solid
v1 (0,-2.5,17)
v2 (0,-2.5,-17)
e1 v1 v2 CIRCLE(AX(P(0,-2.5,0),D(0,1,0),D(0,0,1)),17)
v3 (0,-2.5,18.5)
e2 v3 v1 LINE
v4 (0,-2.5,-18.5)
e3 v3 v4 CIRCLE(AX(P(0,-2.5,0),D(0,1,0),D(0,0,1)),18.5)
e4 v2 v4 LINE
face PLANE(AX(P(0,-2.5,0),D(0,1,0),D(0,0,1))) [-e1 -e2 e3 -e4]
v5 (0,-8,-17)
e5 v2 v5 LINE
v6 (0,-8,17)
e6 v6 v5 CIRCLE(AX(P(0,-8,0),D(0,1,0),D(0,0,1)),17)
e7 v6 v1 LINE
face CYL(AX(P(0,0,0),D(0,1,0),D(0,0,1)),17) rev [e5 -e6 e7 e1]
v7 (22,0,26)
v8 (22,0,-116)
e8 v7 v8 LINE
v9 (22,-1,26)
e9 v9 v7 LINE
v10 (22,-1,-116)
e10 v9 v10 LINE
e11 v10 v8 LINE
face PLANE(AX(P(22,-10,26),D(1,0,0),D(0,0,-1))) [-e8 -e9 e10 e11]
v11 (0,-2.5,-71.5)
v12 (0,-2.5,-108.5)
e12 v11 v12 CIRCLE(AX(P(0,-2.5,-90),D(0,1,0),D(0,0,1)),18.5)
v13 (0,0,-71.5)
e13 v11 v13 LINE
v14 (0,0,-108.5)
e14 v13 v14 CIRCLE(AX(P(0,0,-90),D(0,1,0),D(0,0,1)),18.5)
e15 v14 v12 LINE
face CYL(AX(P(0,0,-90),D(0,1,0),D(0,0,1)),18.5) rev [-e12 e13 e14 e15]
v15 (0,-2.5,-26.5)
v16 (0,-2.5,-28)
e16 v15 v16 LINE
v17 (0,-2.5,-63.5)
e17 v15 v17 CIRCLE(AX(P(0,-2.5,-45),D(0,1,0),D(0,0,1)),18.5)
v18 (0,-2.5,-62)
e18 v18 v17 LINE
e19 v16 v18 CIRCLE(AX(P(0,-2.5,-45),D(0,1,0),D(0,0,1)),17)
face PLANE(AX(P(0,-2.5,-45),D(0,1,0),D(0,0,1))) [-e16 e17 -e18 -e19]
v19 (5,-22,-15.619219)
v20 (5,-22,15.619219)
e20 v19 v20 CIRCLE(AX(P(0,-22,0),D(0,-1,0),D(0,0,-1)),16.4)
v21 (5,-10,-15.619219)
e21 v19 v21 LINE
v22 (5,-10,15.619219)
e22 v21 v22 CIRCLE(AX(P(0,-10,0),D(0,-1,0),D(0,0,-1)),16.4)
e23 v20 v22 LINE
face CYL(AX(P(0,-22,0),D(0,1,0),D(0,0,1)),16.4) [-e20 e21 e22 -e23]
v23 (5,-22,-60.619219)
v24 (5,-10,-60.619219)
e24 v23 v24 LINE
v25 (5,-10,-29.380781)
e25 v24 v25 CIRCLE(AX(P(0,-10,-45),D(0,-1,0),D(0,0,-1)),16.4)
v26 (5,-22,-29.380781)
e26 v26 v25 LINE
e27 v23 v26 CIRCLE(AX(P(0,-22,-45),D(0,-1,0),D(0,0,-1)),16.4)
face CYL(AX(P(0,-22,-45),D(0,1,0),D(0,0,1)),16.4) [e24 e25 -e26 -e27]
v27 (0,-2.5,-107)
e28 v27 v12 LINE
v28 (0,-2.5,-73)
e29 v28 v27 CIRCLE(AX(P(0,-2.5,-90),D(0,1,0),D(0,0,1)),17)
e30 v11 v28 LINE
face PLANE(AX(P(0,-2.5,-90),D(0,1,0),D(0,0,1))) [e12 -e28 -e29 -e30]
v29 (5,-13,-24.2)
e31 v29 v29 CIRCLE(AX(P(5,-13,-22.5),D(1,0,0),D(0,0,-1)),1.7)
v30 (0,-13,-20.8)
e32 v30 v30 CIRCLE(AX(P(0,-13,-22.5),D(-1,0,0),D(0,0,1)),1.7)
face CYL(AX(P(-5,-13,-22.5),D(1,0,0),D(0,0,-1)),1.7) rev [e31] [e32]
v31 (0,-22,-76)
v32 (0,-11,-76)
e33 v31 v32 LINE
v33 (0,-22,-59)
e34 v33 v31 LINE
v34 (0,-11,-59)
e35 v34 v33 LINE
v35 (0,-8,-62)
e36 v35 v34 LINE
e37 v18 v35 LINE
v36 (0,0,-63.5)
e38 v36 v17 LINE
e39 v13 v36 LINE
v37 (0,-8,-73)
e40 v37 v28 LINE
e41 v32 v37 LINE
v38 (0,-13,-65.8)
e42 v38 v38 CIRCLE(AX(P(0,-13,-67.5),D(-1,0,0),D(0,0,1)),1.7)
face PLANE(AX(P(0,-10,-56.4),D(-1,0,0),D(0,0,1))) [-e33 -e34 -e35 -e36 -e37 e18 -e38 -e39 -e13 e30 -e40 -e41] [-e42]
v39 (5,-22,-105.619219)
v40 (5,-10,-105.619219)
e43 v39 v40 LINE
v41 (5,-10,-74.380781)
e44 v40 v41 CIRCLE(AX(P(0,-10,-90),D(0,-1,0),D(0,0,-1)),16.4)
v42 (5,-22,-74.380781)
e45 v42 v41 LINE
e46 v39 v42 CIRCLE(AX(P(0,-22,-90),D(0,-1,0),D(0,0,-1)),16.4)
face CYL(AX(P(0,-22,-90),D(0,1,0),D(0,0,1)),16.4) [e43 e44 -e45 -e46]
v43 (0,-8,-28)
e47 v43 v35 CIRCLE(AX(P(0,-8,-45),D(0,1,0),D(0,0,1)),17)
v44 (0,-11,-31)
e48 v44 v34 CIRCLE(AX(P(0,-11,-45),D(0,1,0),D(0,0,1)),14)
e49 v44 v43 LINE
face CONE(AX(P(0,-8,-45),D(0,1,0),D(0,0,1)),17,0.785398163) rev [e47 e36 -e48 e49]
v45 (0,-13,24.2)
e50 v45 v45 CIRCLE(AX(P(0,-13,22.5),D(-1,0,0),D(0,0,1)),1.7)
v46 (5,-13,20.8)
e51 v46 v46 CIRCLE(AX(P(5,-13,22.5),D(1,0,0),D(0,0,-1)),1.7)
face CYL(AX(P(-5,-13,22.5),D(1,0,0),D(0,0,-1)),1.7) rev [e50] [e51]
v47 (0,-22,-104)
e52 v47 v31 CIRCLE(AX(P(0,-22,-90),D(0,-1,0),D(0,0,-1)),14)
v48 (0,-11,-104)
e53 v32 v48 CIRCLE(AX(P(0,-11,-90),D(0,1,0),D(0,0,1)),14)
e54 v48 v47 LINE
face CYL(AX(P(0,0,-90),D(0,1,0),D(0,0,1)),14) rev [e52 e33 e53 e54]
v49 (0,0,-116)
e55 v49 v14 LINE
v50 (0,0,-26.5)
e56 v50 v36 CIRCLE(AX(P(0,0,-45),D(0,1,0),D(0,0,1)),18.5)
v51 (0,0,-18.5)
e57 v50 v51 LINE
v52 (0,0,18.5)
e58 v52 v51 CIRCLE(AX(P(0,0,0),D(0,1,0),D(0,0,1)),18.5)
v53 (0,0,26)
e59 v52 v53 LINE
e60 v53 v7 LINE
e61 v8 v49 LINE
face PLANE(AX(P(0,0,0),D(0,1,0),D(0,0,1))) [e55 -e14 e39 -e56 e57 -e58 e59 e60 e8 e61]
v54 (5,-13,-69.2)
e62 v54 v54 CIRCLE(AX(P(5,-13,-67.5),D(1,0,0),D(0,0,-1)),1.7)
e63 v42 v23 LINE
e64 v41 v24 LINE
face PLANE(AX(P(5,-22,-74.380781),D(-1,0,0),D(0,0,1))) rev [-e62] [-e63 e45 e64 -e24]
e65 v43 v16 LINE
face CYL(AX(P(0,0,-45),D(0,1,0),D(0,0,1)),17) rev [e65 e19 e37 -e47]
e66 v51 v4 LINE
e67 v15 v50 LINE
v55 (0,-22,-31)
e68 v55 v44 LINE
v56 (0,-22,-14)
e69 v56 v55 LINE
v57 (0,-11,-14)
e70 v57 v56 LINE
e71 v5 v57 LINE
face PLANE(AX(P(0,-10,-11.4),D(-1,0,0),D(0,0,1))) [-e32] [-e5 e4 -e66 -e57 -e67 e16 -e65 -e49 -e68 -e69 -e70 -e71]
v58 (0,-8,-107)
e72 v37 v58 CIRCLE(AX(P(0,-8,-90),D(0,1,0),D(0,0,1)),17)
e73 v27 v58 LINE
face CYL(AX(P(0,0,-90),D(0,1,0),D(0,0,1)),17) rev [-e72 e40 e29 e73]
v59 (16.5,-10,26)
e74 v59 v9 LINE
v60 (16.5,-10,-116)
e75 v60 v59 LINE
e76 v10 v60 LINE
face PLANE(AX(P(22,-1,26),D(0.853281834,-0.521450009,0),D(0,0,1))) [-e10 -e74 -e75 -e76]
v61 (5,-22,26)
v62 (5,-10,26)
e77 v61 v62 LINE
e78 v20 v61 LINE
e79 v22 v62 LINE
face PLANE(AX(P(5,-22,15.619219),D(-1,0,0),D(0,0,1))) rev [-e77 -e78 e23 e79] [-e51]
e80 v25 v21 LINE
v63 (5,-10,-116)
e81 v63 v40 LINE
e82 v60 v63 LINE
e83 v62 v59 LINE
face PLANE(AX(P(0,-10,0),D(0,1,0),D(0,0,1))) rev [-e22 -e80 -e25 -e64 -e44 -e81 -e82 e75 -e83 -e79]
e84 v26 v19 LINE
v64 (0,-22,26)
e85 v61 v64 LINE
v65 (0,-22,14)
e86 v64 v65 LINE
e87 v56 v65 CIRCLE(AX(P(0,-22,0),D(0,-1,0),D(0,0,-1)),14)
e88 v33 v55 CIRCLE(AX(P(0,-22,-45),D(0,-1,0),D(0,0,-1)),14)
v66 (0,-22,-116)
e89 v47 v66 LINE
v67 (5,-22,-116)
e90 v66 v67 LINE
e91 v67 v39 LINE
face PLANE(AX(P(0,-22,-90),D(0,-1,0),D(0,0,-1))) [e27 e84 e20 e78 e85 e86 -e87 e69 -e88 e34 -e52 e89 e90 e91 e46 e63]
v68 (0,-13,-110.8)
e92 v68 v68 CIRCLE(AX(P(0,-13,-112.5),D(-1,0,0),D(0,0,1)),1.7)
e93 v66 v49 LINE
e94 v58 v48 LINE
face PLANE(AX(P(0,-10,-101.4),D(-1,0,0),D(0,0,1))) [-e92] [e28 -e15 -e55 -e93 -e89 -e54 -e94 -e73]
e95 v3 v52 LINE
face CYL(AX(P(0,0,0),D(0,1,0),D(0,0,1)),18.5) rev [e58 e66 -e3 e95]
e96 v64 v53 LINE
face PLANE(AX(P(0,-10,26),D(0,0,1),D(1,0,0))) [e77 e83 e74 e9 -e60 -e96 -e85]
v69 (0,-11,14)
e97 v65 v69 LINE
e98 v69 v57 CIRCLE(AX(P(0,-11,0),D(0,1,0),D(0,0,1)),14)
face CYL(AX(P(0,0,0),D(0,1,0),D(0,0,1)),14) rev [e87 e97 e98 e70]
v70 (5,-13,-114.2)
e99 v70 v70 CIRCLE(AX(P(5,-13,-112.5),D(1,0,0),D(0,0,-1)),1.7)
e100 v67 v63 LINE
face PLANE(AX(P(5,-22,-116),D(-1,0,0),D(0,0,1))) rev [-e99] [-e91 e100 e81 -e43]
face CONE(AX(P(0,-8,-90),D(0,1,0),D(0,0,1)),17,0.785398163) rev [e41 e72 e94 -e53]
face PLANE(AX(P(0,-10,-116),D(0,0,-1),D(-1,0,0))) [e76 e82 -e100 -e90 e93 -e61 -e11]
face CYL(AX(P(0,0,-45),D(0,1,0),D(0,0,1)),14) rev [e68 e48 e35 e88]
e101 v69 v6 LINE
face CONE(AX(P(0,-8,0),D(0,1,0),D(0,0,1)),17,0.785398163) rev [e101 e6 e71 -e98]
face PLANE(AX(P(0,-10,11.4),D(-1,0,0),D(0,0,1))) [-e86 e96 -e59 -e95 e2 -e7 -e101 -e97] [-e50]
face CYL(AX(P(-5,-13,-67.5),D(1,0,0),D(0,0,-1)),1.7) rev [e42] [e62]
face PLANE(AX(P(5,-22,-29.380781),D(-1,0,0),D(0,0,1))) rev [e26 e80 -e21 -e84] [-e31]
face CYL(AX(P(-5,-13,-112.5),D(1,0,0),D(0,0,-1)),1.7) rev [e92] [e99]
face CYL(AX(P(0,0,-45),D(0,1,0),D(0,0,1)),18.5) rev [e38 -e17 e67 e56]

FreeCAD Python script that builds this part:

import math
import FreeCAD as App
import Part
import Sketcher
Q = App.Units.Quantity


def edges_at(feature, points):
    """Names of the edges that pass closest to the given points."""
    edges = feature.Shape.Edges
    near = lambda p: min(range(len(edges)), key=lambda i: edges[i].distToShape(Part.Vertex(*p))[0])
    return sorted({f"Edge{near(p) + 1}" for p in points})


def add_polygon(sketch, points):
    """Adds a closed chain of lines whose ends are joined by coincident constraints."""
    first, n = sketch.GeometryCount, len(points)
    for a, b in zip(points, points[1:] + points[:1]):
        sketch.addGeometry(Part.LineSegment(App.Vector(*a, 0), App.Vector(*b, 0)), False)
    for i in range(n):
        sketch.addConstraint(Sketcher.Constraint("Coincident", first + i, 2, first + (i + 1) % n, 1))

doc = App.newDocument("Part")
body = doc.addObject("PartDesign::Body", "Body")

# Sketch on XZ plane
sketch1 = body.newObject("Sketcher::SketchObject", "Sketch")
sketch1.AttachmentSupport = (doc.getObject("XZ_Plane"), [""])
sketch1.MapMode = "FlatFace"
sketch1.addGeometry([
    Part.LineSegment(App.Vector(0, 11, 0), App.Vector(0, 26, 0)),  # 0
    Part.LineSegment(App.Vector(0, 26, 0), App.Vector(22, 26, 0)),  # 1
    Part.LineSegment(App.Vector(22, 26, 0), App.Vector(22, -116, 0)),  # 2
    Part.LineSegment(App.Vector(22, -116, 0), App.Vector(0, -116, 0)),  # 3
    Part.LineSegment(App.Vector(0, -116, 0), App.Vector(0, -101, 0)),  # 4
    Part.ArcOfCircle(Part.Circle(App.Vector(0, -90, 0), App.Vector(0, 0, 1), 11), math.radians(-90), math.radians(90)),  # 5
    Part.LineSegment(App.Vector(0, -79, 0), App.Vector(0, -56, 0)),  # 6
    Part.ArcOfCircle(Part.Circle(App.Vector(0, -45, 0), App.Vector(0, 0, 1), 11), math.radians(-90), math.radians(90)),  # 7
    Part.LineSegment(App.Vector(0, -34, 0), App.Vector(0, -11, 0)),  # 8
    Part.ArcOfCircle(Part.Circle(App.Vector(0, 0, 0), App.Vector(0, 0, 1), 11), math.radians(-90), math.radians(90)),  # 9
], False)
sketch1.addConstraint([
    Sketcher.Constraint("Coincident", 0, 2, 1, 1),
    Sketcher.Constraint("Coincident", 1, 2, 2, 1),
    Sketcher.Constraint("Coincident", 2, 2, 3, 1),
    Sketcher.Constraint("Coincident", 3, 2, 4, 1),
    Sketcher.Constraint("Coincident", 4, 2, 5, 1),
    Sketcher.Constraint("Coincident", 5, 2, 6, 1),
    Sketcher.Constraint("Coincident", 6, 2, 7, 1),
    Sketcher.Constraint("Coincident", 7, 2, 8, 1),
    Sketcher.Constraint("Coincident", 8, 2, 9, 1),
    Sketcher.Constraint("Coincident", 9, 2, 0, 1),
    Sketcher.Constraint("Vertical", 0),
    Sketcher.Constraint("Horizontal", 1),
    Sketcher.Constraint("Vertical", 2),
    Sketcher.Constraint("Horizontal", 3),
    Sketcher.Constraint("Vertical", 4),
    Sketcher.Constraint("Vertical", 6),
    Sketcher.Constraint("Vertical", 8),
    Sketcher.Constraint("Coincident", 9, 3, -1, 1),
    Sketcher.Constraint("Equal", 5, 7),
    Sketcher.Constraint("Equal", 7, 9),
    Sketcher.Constraint("PointOnObject", 5, 3, -2),
    Sketcher.Constraint("PointOnObject", 7, 3, -2),
    Sketcher.Constraint("PointOnObject", 0, 2, -2),
    Sketcher.Constraint("PointOnObject", 3, 2, -2),
    Sketcher.Constraint("PointOnObject", 5, 2, -2),
    Sketcher.Constraint("PointOnObject", 7, 2, -2),
    Sketcher.Constraint("Equal", 0, 4),
    Sketcher.Constraint("Equal", 6, 8),
    Sketcher.Constraint("Radius", 5, 11.4),
    Sketcher.Constraint("DistanceX", 1, 1, 1, 2, 22.0),
    Sketcher.Constraint("DistanceY", 2, 2, 2, 1, 142.0),
    Sketcher.Constraint("DistanceY", 0, 1, 0, 2, 14.6),
])
pad1 = body.newObject("PartDesign::Pad", "Pad")
pad1.Profile = sketch1
pad1.Length = 10

# Sketch on XZ plane
sketch2 = body.newObject("Sketcher::SketchObject", "Sketch001")
sketch2.AttachmentSupport = (doc.getObject("XZ_Plane"), [""])
sketch2.MapMode = "FlatFace"
sketch2.AttachmentOffset = App.Placement(App.Vector(0, 0, 10), App.Rotation())
sketch2.addGeometry([
    Part.LineSegment(App.Vector(0, -101, 0), App.Vector(0, -116, 0)),  # 0
    Part.LineSegment(App.Vector(0, -116, 0), App.Vector(5, -116, 0)),  # 1
    Part.LineSegment(App.Vector(5, -116, 0), App.Vector(5, -106, 0)),  # 2
    Part.ArcOfCircle(Part.Circle(App.Vector(0, -90, 0), App.Vector(0, 0, 1), 16), math.radians(-72), math.radians(72)),  # 3
    Part.LineSegment(App.Vector(5, -74, 0), App.Vector(5, -61, 0)),  # 4
    Part.ArcOfCircle(Part.Circle(App.Vector(0, -45, 0), App.Vector(0, 0, 1), 16), math.radians(-72), math.radians(72)),  # 5
    Part.LineSegment(App.Vector(5, -29, 0), App.Vector(5, -16, 0)),  # 6
    Part.ArcOfCircle(Part.Circle(App.Vector(0, 0, 0), App.Vector(0, 0, 1), 16), math.radians(-72), math.radians(72)),  # 7
    Part.LineSegment(App.Vector(5, 16, 0), App.Vector(5, 26, 0)),  # 8
    Part.LineSegment(App.Vector(5, 26, 0), App.Vector(0, 26, 0)),  # 9
    Part.LineSegment(App.Vector(0, 26, 0), App.Vector(0, 11, 0)),  # 10
    Part.ArcOfCircle(Part.Circle(App.Vector(0, 0, 0), App.Vector(0, 0, 1), 11), math.radians(-90), math.radians(90)),  # 11
    Part.LineSegment(App.Vector(0, -11, 0), App.Vector(0, -34, 0)),  # 12
    Part.ArcOfCircle(Part.Circle(App.Vector(0, -45, 0), App.Vector(0, 0, 1), 11), math.radians(-90), math.radians(90)),  # 13
    Part.LineSegment(App.Vector(0, -56, 0), App.Vector(0, -79, 0)),  # 14
    Part.ArcOfCircle(Part.Circle(App.Vector(0, -90, 0), App.Vector(0, 0, 1), 11), math.radians(-90), math.radians(90)),  # 15
], False)
sketch2.addConstraint([
    Sketcher.Constraint("Coincident", 0, 2, 1, 1),
    Sketcher.Constraint("Coincident", 1, 2, 2, 1),
    Sketcher.Constraint("Coincident", 2, 2, 3, 1),
    Sketcher.Constraint("Coincident", 3, 2, 4, 1),
    Sketcher.Constraint("Coincident", 4, 2, 5, 1),
    Sketcher.Constraint("Coincident", 5, 2, 6, 1),
    Sketcher.Constraint("Coincident", 6, 2, 7, 1),
    Sketcher.Constraint("Coincident", 7, 2, 8, 1),
    Sketcher.Constraint("Coincident", 8, 2, 9, 1),
    Sketcher.Constraint("Coincident", 9, 2, 10, 1),
    Sketcher.Constraint("Coincident", 10, 2, 11, 2),
    Sketcher.Constraint("Coincident", 11, 1, 12, 1),
    Sketcher.Constraint("Coincident", 12, 2, 13, 2),
    Sketcher.Constraint("Coincident", 13, 1, 14, 1),
    Sketcher.Constraint("Coincident", 14, 2, 15, 2),
    Sketcher.Constraint("Coincident", 15, 1, 0, 1),
    Sketcher.Constraint("Vertical", 0),
    Sketcher.Constraint("Horizontal", 1),
    Sketcher.Constraint("Vertical", 2),
    Sketcher.Constraint("Vertical", 4),
    Sketcher.Constraint("Vertical", 6),
    Sketcher.Constraint("Vertical", 8),
    Sketcher.Constraint("Horizontal", 9),
    Sketcher.Constraint("Vertical", 10),
    Sketcher.Constraint("Vertical", 12),
    Sketcher.Constraint("Vertical", 14),
    Sketcher.Constraint("Coincident", 7, 3, -1, 1),
    Sketcher.Constraint("Coincident", 11, 3, -1, 1),
    Sketcher.Constraint("Coincident", 13, 3, 5, 3),
    Sketcher.Constraint("Coincident", 15, 3, 3, 3),
    Sketcher.Constraint("Equal", 3, 5),
    Sketcher.Constraint("Equal", 5, 7),
    Sketcher.Constraint("Equal", 11, 13),
    Sketcher.Constraint("Equal", 13, 15),
    Sketcher.Constraint("PointOnObject", 3, 3, -2),
    Sketcher.Constraint("PointOnObject", 5, 3, -2),
    Sketcher.Constraint("PointOnObject", 0, 2, -2),
    Sketcher.Constraint("PointOnObject", 9, 2, -2),
    Sketcher.Constraint("PointOnObject", 11, 1, -2),
    Sketcher.Constraint("PointOnObject", 13, 1, -2),
    Sketcher.Constraint("Vertical", 2, 2, 3, 2),
    Sketcher.Constraint("Vertical", 4, 2, 5, 2),
    Sketcher.Constraint("Vertical", 6, 2, 7, 2),
    Sketcher.Constraint("Equal", 4, 6),
    Sketcher.Constraint("Equal", 2, 8),
    Sketcher.Constraint("Radius", 3, 16.4),
    Sketcher.Constraint("Radius", 11, 11.4),
    Sketcher.Constraint("DistanceX", 1, 1, 1, 2, 5.0),
    Sketcher.Constraint("DistanceY", 0, 2, 0, 1, 14.6),
    Sketcher.Constraint("DistanceY", 12, 2, 12, 1, 22.2),
])
pad2 = body.newObject("PartDesign::Pad", "Pad001")
pad2.Profile = sketch2
pad2.Length = 12
doc.recompute()

chamfer = body.newObject("PartDesign::Chamfer", "Chamfer")
chamfer.Base = (pad2, edges_at(pad2, [(22, -10, -45)]))
chamfer.ChamferType = "Two distances"
chamfer.Size = 5.5
chamfer.Size2 = 9
chamfer.FlipDirection = True

# Sketch on YZ plane
sketch3 = body.newObject("Sketcher::SketchObject", "Sketch002")
sketch3.AttachmentSupport = (doc.getObject("YZ_Plane"), [""])
sketch3.MapMode = "FlatFace"
add_polygon(sketch3, [(-26, -90), (-26, -76), (-11, -76), (-8, -73), (-2.5, -73), (-2.5, -71.5), (0, -71.5), (0, -90)])  # lines 0-7
sketch3.addGeometry(Part.LineSegment(App.Vector(0, -90, 0), App.Vector(-26, -90, 0)), True)  # axis
sketch3.addConstraint([
    Sketcher.Constraint("Vertical", 0),
    Sketcher.Constraint("Horizontal", 1),
    Sketcher.Constraint("Horizontal", 3),
    Sketcher.Constraint("Vertical", 4),
    Sketcher.Constraint("Horizontal", 5),
    Sketcher.Constraint("Vertical", 6),
    Sketcher.Constraint("Horizontal", 7),
    Sketcher.Constraint("Horizontal", 8),
    Sketcher.Constraint("Coincident", 8, 1, 6, 2),
    Sketcher.Constraint("PointOnObject", 5, 2, -2),
    Sketcher.Constraint("Vertical", 0, 2, 8, 2),
    Sketcher.Constraint("DistanceX", 1, 1, 1, 2, 15.0),
    Sketcher.Constraint("DistanceX", 7, 2, 7, 1, 26.0),
    Sketcher.Constraint("DistanceY", 0, 1, 0, 2, 14.0),
    Sketcher.Constraint("Angle", 2, Q("45 deg")),
    Sketcher.Constraint("DistanceX", 3, 1, 3, 2, 5.5),
    Sketcher.Constraint("DistanceX", 5, 1, 5, 2, 2.5),
    Sketcher.Constraint("DistanceY", 4, 1, 4, 2, 1.5),
    Sketcher.Constraint("DistanceY", 0, 2, -1, 1, 76.0),
])
groove = body.newObject("PartDesign::Groove", "Groove")
groove.Profile = sketch3
groove.ReferenceAxis = (sketch3, ["Axis0"])
groove.Angle = 360
doc.recompute()

linearpattern = body.newObject("PartDesign::LinearPattern", "LinearPattern")
linearpattern.Originals = [groove]
linearpattern.Direction = (doc.getObject("Z_Axis"), [""])
linearpattern.Mode = "offset"
linearpattern.Offset = 45
linearpattern.Occurrences = 3
body.Tip = linearpattern

# Sketch on YZ plane
sketch4 = body.newObject("Sketcher::SketchObject", "Sketch003")
sketch4.AttachmentSupport = (doc.getObject("YZ_Plane"), [""])
sketch4.MapMode = "FlatFace"
sketch4.AttachmentOffset = App.Placement(App.Vector(0, 0, 5), App.Rotation())
sketch4.addGeometry(Part.Circle(App.Vector(-13, -67.5, 0), App.Vector(0, 0, 1), 1.7), False)
sketch4.addConstraint([
    Sketcher.Constraint("Diameter", 0, 3.4),
    Sketcher.Constraint("DistanceX", 0, 3, -1, 1, 13.0),
    Sketcher.Constraint("DistanceY", 0, 3, -1, 1, 67.5),
])
pocket1 = body.newObject("PartDesign::Pocket", "Pocket")
pocket1.Profile = sketch4
pocket1.Length = 10
doc.recompute()

linearpattern2 = body.newObject("PartDesign::LinearPattern", "LinearPattern001")
linearpattern2.Originals = [pocket1]
linearpattern2.Direction = (doc.getObject("Z_Axis"), [""])
linearpattern2.Mode = "offset"
linearpattern2.Offset = 45
linearpattern2.Occurrences = 3
body.Tip = linearpattern2
doc.recompute()

linearpattern3 = body.newObject("PartDesign::LinearPattern", "LinearPattern002")
linearpattern3.Originals = [pocket1]
linearpattern3.Direction = (doc.getObject("Z_Axis"), [""])
linearpattern3.Mode = "offset"
linearpattern3.Offset = 45
linearpattern3.Occurrences = 2
linearpattern3.Reversed = True
body.Tip = linearpattern3

doc.recompute()
